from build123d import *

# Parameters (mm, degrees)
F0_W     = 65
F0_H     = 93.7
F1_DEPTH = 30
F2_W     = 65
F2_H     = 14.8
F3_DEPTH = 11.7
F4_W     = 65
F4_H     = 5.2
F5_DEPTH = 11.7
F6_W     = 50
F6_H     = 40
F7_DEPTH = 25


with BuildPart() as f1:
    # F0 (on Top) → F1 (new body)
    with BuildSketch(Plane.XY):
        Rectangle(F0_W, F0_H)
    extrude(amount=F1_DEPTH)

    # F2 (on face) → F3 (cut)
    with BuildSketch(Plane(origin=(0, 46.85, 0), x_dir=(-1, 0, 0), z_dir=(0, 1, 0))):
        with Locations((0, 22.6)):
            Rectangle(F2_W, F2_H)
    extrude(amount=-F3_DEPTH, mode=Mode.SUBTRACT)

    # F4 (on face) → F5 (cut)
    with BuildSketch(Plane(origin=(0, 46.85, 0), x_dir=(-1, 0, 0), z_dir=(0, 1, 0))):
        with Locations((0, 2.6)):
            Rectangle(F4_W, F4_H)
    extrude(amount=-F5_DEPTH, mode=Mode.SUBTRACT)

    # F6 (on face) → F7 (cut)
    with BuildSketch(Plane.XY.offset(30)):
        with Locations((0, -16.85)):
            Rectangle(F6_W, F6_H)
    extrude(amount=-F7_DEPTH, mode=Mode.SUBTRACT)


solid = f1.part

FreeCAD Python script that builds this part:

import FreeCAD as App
import Part
import Sketcher


def add_polygon(sketch, points):
    """Adds a closed chain of lines whose ends are joined by coincident constraints."""
    first, n = sketch.GeometryCount, len(points)
    for a, b in zip(points, points[1:] + points[:1]):
        sketch.addGeometry(Part.LineSegment(App.Vector(*a, 0), App.Vector(*b, 0)), False)
    for i in range(n):
        sketch.addConstraint(Sketcher.Constraint("Coincident", first + i, 2, first + (i + 1) % n, 1))

doc = App.newDocument("Part")
body = doc.addObject("PartDesign::Body", "Body")

# Sketch on XY plane
sketch1 = doc.addObject("Sketcher::SketchObject", "Sketch")
body.addObject(sketch1)
sketch1.AttachmentSupport = (doc.XY_Plane, [""])
sketch1.MapMode = "FlatFace"
add_polygon(sketch1, [(-32, 47), (-32, -47), (32, -47), (32, 47)])  # lines 0-3
sketch1.addConstraint(Sketcher.Constraint("Vertical", 0))
sketch1.addConstraint(Sketcher.Constraint("Horizontal", 1))
sketch1.addConstraint(Sketcher.Constraint("Vertical", 2))
sketch1.addConstraint(Sketcher.Constraint("Horizontal", 3))
sketch1.addConstraint(Sketcher.Constraint("Symmetric", 0, 2, 2, 2, -1, 1))
sketch1.addConstraint(Sketcher.Constraint("DistanceX", 1, 1, 1, 2, 65.0))
sketch1.addConstraint(Sketcher.Constraint("DistanceY", 0, 2, 0, 1, 93.7))
pad1 = doc.addObject("PartDesign::Pad", "Pad")
body.addObject(pad1)
pad1.Profile = sketch1
pad1.Length = 30

# Sketch on XZ plane
sketch2 = doc.addObject("Sketcher::SketchObject", "Sketch001")
body.addObject(sketch2)
sketch2.AttachmentSupport = (doc.XZ_Plane, [""])
sketch2.MapMode = "FlatFace"
sketch2.AttachmentOffset = App.Placement(App.Vector(0, 0, -46.85), App.Rotation())
add_polygon(sketch2, [(32, 30), (32, 15), (-32, 15), (-32, 30)])  # lines 0-3
sketch2.addConstraint(Sketcher.Constraint("Vertical", 0))
sketch2.addConstraint(Sketcher.Constraint("Horizontal", 1))
sketch2.addConstraint(Sketcher.Constraint("Vertical", 2))
sketch2.addConstraint(Sketcher.Constraint("Horizontal", 3))
sketch2.addConstraint(Sketcher.Constraint("DistanceX", 1, 2, 1, 1, 65.0))
sketch2.addConstraint(Sketcher.Constraint("DistanceY", 0, 2, 0, 1, 14.8))
sketch2.addConstraint(Sketcher.Constraint("DistanceY", -1, 1, 2, 2, 30.0))
sketch2.addConstraint(Sketcher.Constraint("DistanceX", -1, 1, 0, 2, 32.5))
pocket1 = doc.addObject("PartDesign::Pocket", "Pocket")
body.addObject(pocket1)
pocket1.Profile = sketch2
pocket1.Length = 11.7
pocket1.Reversed = True

# Sketch on XZ plane
sketch3 = doc.addObject("Sketcher::SketchObject", "Sketch002")
body.addObject(sketch3)
sketch3.AttachmentSupport = (doc.XZ_Plane, [""])
sketch3.MapMode = "FlatFace"
sketch3.AttachmentOffset = App.Placement(App.Vector(0, 0, -46.85), App.Rotation())
add_polygon(sketch3, [(32, 5), (32, 0), (-32, 0), (-32, 5)])  # lines 0-3
sketch3.addConstraint(Sketcher.Constraint("Vertical", 0))
sketch3.addConstraint(Sketcher.Constraint("Horizontal", 1))
sketch3.addConstraint(Sketcher.Constraint("Vertical", 2))
sketch3.addConstraint(Sketcher.Constraint("Horizontal", 3))
sketch3.addConstraint(Sketcher.Constraint("Symmetric", 0, 2, 1, 2, -1, 1))
sketch3.addConstraint(Sketcher.Constraint("DistanceX", 1, 2, 1, 1, 65.0))
sketch3.addConstraint(Sketcher.Constraint("DistanceY", 0, 2, 0, 1, 5.2))
pocket2 = doc.addObject("PartDesign::Pocket", "Pocket001")
body.addObject(pocket2)
pocket2.Profile = sketch3
pocket2.Length = 11.7
pocket2.Reversed = True

# Sketch on XY plane
sketch4 = doc.addObject("Sketcher::SketchObject", "Sketch003")
body.addObject(sketch4)
sketch4.AttachmentSupport = (doc.XY_Plane, [""])
sketch4.MapMode = "FlatFace"
sketch4.AttachmentOffset = App.Placement(App.Vector(0, 0, 30), App.Rotation())
add_polygon(sketch4, [(-25, 3), (-25, -37), (25, -37), (25, 3)])  # lines 0-3
sketch4.addConstraint(Sketcher.Constraint("Vertical", 0))
sketch4.addConstraint(Sketcher.Constraint("Horizontal", 1))
sketch4.addConstraint(Sketcher.Constraint("Vertical", 2))
sketch4.addConstraint(Sketcher.Constraint("Horizontal", 3))
sketch4.addConstraint(Sketcher.Constraint("DistanceX", 1, 1, 1, 2, 50.0))
sketch4.addConstraint(Sketcher.Constraint("DistanceY", 0, 2, 0, 1, 40.0))
sketch4.addConstraint(Sketcher.Constraint("DistanceX", 0, 2, -1, 1, 25.0))
sketch4.addConstraint(Sketcher.Constraint("DistanceY", 0, 2, -1, 1, 36.85))
pocket3 = doc.addObject("PartDesign::Pocket", "Pocket002")
body.addObject(pocket3)
pocket3.Profile = sketch4
pocket3.Length = 25

doc.recompute()
